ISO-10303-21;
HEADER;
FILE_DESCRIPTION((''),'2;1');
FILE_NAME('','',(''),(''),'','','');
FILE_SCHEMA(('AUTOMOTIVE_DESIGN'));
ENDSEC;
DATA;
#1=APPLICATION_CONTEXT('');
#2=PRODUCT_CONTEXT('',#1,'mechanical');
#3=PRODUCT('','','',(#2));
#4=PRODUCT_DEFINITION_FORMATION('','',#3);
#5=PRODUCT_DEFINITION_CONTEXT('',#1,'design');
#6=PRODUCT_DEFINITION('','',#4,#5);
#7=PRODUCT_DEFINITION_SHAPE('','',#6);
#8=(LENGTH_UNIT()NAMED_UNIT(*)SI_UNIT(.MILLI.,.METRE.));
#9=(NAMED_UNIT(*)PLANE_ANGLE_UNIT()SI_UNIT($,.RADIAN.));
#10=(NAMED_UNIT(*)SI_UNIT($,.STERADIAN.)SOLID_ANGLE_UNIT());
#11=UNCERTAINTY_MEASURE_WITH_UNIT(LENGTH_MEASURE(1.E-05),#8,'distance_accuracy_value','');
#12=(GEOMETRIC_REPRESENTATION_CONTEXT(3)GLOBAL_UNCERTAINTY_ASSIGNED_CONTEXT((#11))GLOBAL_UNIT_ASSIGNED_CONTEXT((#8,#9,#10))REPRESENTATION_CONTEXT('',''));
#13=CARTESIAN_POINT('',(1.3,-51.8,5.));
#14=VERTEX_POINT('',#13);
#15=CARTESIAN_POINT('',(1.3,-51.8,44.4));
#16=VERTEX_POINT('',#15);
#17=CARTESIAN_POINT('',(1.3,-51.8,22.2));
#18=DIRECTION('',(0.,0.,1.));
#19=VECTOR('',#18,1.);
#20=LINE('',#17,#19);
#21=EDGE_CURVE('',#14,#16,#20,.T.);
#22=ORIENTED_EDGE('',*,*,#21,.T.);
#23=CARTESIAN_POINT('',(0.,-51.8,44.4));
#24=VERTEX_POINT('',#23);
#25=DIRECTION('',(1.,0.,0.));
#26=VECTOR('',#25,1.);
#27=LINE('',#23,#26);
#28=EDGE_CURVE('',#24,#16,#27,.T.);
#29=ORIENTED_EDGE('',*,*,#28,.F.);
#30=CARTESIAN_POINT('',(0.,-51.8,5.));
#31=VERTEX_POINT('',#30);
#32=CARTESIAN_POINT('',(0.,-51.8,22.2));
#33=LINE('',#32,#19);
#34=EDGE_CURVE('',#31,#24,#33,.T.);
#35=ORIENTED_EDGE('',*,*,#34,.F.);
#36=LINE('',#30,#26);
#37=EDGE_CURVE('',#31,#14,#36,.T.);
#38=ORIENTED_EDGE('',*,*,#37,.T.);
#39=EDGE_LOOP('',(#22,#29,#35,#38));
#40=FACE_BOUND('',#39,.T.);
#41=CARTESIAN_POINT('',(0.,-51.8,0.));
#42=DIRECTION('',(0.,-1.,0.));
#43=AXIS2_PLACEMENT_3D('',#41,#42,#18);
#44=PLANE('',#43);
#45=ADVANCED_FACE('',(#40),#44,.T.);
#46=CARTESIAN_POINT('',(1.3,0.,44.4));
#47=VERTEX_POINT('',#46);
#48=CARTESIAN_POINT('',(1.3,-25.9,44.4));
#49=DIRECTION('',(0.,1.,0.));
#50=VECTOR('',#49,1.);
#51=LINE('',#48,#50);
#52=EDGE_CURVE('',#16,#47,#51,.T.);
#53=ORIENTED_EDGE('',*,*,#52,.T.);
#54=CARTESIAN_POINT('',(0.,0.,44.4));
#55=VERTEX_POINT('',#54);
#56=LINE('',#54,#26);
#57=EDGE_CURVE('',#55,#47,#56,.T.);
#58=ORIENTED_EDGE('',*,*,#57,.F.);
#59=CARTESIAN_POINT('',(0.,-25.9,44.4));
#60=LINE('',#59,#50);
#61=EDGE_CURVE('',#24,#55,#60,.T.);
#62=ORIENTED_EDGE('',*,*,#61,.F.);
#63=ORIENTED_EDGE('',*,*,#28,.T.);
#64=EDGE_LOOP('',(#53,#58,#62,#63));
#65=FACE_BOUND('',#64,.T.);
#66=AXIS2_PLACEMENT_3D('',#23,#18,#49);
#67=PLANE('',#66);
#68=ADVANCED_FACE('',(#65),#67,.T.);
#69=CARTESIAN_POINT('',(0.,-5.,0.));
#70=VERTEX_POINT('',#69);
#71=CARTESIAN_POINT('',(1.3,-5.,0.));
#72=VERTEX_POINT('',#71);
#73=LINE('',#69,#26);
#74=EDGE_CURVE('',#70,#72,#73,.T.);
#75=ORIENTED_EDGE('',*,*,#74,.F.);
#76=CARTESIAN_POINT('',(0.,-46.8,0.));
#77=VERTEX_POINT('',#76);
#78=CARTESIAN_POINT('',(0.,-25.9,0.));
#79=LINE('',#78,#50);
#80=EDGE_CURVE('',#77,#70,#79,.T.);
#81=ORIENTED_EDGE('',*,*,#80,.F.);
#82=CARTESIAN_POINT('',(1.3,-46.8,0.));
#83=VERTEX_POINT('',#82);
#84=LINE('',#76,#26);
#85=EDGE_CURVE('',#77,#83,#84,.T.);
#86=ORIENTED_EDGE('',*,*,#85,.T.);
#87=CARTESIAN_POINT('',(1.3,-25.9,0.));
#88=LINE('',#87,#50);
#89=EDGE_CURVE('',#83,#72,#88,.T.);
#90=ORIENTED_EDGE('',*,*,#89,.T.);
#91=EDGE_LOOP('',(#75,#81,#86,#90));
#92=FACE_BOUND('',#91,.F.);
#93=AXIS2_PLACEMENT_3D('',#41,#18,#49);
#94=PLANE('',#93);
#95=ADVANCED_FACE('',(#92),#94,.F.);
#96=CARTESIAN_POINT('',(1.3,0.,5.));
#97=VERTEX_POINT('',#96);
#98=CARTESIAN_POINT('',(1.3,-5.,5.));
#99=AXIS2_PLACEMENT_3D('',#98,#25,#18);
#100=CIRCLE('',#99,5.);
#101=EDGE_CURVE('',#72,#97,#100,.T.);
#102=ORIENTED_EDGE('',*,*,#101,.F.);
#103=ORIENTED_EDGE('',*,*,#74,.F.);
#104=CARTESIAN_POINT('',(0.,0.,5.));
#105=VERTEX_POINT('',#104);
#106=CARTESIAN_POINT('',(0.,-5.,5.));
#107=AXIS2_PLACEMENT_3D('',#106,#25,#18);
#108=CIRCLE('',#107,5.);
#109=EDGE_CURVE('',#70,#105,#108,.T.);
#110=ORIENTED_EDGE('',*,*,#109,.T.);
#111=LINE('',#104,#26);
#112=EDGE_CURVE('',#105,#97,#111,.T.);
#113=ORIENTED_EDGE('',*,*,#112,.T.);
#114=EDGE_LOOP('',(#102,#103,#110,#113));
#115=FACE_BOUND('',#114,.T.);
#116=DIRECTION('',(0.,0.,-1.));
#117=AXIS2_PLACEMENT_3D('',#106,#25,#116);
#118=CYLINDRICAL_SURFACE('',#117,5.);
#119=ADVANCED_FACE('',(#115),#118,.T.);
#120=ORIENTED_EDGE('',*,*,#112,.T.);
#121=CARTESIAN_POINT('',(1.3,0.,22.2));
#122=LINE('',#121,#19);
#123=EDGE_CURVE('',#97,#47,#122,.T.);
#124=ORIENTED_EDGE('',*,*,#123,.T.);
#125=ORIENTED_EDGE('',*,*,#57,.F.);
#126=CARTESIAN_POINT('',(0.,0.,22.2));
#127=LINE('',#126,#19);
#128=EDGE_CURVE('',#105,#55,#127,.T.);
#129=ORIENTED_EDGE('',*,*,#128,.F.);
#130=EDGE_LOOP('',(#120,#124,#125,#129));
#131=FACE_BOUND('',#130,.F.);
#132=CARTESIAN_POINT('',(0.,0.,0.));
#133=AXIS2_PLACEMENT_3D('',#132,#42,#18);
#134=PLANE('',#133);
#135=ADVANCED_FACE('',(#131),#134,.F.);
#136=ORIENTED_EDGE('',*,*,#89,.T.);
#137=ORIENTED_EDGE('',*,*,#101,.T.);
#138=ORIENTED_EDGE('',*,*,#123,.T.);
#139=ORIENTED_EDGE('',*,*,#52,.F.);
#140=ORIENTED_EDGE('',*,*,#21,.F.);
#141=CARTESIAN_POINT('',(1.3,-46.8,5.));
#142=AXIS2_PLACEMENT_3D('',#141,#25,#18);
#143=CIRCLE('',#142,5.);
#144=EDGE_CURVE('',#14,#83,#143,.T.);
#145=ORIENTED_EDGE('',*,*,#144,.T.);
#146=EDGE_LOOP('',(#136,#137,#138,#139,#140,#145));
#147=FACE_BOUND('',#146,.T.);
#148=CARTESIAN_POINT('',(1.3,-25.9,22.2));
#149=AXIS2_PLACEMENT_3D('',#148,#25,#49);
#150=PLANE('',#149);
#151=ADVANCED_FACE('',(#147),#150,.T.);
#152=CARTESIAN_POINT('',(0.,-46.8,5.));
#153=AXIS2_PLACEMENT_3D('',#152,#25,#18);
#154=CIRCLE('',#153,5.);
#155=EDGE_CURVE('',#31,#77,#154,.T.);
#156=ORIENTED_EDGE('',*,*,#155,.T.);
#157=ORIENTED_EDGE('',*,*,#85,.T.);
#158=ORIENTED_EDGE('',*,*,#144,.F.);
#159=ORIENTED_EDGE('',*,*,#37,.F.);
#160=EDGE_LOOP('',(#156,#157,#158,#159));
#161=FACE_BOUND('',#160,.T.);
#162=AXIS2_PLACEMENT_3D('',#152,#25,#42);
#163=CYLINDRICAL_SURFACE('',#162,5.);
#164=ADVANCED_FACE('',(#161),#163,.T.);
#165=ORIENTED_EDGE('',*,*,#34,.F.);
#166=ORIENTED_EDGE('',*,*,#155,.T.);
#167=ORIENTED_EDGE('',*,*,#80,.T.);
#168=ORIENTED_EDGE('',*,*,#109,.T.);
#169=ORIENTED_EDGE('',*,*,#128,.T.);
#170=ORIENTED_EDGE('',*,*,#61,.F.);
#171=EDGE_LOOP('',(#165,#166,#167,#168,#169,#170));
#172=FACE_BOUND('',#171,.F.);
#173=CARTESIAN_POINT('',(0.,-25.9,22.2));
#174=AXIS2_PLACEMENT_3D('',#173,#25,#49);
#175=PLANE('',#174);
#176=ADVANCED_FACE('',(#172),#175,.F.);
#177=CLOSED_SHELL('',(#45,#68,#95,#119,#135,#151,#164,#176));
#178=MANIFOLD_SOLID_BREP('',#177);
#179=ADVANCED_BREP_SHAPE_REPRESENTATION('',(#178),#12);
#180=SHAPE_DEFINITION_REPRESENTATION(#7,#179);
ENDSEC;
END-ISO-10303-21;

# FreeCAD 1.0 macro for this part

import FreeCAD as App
import Part
import Sketcher

V = App.Vector
Q = App.Units.Quantity


def edges_at(feature, points):
    """Names of the edges that pass closest to the given points."""
    edges = feature.Shape.Edges
    near = lambda p: min(range(len(edges)), key=lambda i: edges[i].distToShape(Part.Vertex(*p))[0])
    return sorted({f"Edge{near(p) + 1}" for p in points})

doc = App.newDocument("Part")
body = doc.addObject("PartDesign::Body", "Body")

# Sketch on YZ plane
sketch1 = body.newObject("Sketcher::SketchObject", "Sketch")
sketch1.AttachmentSupport = (doc.getObject("YZ_Plane"), [""])
sketch1.MapMode = "FlatFace"
sketch1.addGeometry([
    Part.LineSegment(V(-52, 44, 0), V(-52, 0, 0)),
    Part.LineSegment(V(-52, 0, 0), V(0, 0, 0)),
    Part.LineSegment(V(0, 0, 0), V(0, 44, 0)),
    Part.LineSegment(V(0, 44, 0), V(-52, 44, 0)),
], False)
sketch1.addConstraint([
    Sketcher.Constraint("Coincident", 0, 2, 1, 1),
    Sketcher.Constraint("Coincident", 1, 2, 2, 1),
    Sketcher.Constraint("Coincident", 2, 2, 3, 1),
    Sketcher.Constraint("Coincident", 3, 2, 0, 1),
    Sketcher.Constraint("Vertical", 0),
    Sketcher.Constraint("Horizontal", 1),
    Sketcher.Constraint("Vertical", 2),
    Sketcher.Constraint("Horizontal", 3),
    Sketcher.Constraint("Coincident", 1, 2, -1, 1),
    Sketcher.Constraint("DistanceX", 1, 1, 1, 2, Q("51.8 mm")),
    Sketcher.Constraint("DistanceY", 0, 2, 0, 1, Q("44.4 mm")),
])
pad1 = body.newObject("PartDesign::Pad", "Pad")
pad1.Profile = sketch1
pad1.Length = 1.3
doc.recompute()

fillet = body.newObject("PartDesign::Fillet", "Fillet")
fillet.Base = (pad1, edges_at(pad1, [(0.65, -51.8, 0), (0.65, 0, 0)]))
fillet.Radius = 5

doc.recompute()
